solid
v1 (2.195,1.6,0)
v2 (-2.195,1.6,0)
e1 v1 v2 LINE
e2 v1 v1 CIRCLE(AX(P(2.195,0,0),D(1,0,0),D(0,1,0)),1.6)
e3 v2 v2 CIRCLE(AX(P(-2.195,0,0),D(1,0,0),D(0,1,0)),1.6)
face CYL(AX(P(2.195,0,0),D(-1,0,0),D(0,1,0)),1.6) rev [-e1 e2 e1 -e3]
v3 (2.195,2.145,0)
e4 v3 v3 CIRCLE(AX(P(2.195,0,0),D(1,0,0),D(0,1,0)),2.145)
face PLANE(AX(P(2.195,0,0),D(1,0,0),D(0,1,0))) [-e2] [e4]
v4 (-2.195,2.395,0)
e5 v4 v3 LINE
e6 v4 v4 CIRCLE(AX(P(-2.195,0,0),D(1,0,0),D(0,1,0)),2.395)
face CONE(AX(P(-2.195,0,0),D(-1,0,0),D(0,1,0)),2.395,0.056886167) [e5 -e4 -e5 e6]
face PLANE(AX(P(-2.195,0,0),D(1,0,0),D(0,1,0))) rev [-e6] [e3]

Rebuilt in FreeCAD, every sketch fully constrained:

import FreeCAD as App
import Part
import Sketcher
from FreeCAD import Vector
Q = App.Units.Quantity


def add_polygon(sketch, points):
    """Adds a closed chain of lines whose ends are joined by coincident constraints."""
    first, n = sketch.GeometryCount, len(points)
    for a, b in zip(points, points[1:] + points[:1]):
        sketch.addGeometry(Part.LineSegment(App.Vector(*a, 0), App.Vector(*b, 0)), False)
    for i in range(n):
        sketch.addConstraint(Sketcher.Constraint("Coincident", first + i, 2, first + (i + 1) % n, 1))

doc = App.newDocument("Part")
body = doc.addObject("PartDesign::Body", "Body")

# Sketch on XY plane
sketch1 = body.newObject("Sketcher::SketchObject", "Sketch")
sketch1.AttachmentSupport = (doc.getObject("XY_Plane"), [""])
sketch1.MapMode = "FlatFace"
add_polygon(sketch1, [(-2.195, 1.6), (2.195, 1.6), (2.195, 2.145), (-2.195, 2.395)])  # lines 0-3
sketch1.addConstraint(Sketcher.Constraint("Horizontal", 0))
sketch1.addConstraint(Sketcher.Constraint("Vertical", 1))
sketch1.addConstraint(Sketcher.Constraint("Vertical", 3))
sketch1.addConstraint(Sketcher.Constraint("DistanceX", 0, 1, 0, 2, Q("4.39 mm")))
sketch1.addConstraint(Sketcher.Constraint("DistanceY", -1, 1, 0, 2, Q("1.6 mm")))
sketch1.addConstraint(Sketcher.Constraint("DistanceY", 1, 1, 1, 2, Q("0.545 mm")))
sketch1.addConstraint(Sketcher.Constraint("DistanceY", 3, 2, 3, 1, Q("0.795 mm")))
sketch1.addConstraint(Sketcher.Constraint("DistanceX", -1, 1, 0, 2, Q("2.195 mm")))
revolution = body.newObject("PartDesign::Revolution", "Revolution")
revolution.Profile = sketch1
revolution.ReferenceAxis = (sketch1, ["H_Axis"])
revolution.Angle = 360

doc.recompute()
